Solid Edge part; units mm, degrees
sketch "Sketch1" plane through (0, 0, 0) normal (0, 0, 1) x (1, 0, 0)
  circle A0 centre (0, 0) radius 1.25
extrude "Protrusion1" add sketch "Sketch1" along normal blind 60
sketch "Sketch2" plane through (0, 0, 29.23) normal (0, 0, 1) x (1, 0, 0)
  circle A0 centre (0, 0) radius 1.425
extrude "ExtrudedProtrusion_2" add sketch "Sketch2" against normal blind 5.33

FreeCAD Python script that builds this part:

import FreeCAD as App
import Part
import Sketcher
from FreeCAD import Vector
Q = App.Units.Quantity

doc = App.newDocument("Part")
body = doc.addObject("PartDesign::Body", "Body")

sketch1 = body.newObject("Sketcher::SketchObject", "Sketch")
sketch1.AttachmentSupport = (doc.getObject("XY_Plane"), [""])
sketch1.MapMode = "FlatFace"
sketch1.addGeometry(Part.Circle(Vector(0, 0, 0), Vector(0, 0, 1), 1.2), False)
sketch1.addConstraint(Sketcher.Constraint("Coincident", 0, 3, -1, 1))
sketch1.addConstraint(Sketcher.Constraint("Diameter", 0, Q("2.5 mm")))
pad1 = body.newObject("PartDesign::Pad", "Pad")
pad1.Profile = sketch1
pad1.Length = 60

sketch2 = body.newObject("Sketcher::SketchObject", "Sketch001")
sketch2.AttachmentSupport = (doc.getObject("XY_Plane"), [""])
sketch2.MapMode = "FlatFace"
sketch2.AttachmentOffset = App.Placement(Vector(0, 0, 29.23), App.Rotation())
sketch2.addGeometry(Part.Circle(Vector(0, 0, 0), Vector(0, 0, 1), 1.4), False)
sketch2.addConstraint(Sketcher.Constraint("Coincident", 0, 3, -1, 1))
sketch2.addConstraint(Sketcher.Constraint("Diameter", 0, Q("2.85 mm")))
pad2 = body.newObject("PartDesign::Pad", "Pad001")
pad2.Profile = sketch2
pad2.Length = 5.33
pad2.Reversed = True

doc.recompute()
